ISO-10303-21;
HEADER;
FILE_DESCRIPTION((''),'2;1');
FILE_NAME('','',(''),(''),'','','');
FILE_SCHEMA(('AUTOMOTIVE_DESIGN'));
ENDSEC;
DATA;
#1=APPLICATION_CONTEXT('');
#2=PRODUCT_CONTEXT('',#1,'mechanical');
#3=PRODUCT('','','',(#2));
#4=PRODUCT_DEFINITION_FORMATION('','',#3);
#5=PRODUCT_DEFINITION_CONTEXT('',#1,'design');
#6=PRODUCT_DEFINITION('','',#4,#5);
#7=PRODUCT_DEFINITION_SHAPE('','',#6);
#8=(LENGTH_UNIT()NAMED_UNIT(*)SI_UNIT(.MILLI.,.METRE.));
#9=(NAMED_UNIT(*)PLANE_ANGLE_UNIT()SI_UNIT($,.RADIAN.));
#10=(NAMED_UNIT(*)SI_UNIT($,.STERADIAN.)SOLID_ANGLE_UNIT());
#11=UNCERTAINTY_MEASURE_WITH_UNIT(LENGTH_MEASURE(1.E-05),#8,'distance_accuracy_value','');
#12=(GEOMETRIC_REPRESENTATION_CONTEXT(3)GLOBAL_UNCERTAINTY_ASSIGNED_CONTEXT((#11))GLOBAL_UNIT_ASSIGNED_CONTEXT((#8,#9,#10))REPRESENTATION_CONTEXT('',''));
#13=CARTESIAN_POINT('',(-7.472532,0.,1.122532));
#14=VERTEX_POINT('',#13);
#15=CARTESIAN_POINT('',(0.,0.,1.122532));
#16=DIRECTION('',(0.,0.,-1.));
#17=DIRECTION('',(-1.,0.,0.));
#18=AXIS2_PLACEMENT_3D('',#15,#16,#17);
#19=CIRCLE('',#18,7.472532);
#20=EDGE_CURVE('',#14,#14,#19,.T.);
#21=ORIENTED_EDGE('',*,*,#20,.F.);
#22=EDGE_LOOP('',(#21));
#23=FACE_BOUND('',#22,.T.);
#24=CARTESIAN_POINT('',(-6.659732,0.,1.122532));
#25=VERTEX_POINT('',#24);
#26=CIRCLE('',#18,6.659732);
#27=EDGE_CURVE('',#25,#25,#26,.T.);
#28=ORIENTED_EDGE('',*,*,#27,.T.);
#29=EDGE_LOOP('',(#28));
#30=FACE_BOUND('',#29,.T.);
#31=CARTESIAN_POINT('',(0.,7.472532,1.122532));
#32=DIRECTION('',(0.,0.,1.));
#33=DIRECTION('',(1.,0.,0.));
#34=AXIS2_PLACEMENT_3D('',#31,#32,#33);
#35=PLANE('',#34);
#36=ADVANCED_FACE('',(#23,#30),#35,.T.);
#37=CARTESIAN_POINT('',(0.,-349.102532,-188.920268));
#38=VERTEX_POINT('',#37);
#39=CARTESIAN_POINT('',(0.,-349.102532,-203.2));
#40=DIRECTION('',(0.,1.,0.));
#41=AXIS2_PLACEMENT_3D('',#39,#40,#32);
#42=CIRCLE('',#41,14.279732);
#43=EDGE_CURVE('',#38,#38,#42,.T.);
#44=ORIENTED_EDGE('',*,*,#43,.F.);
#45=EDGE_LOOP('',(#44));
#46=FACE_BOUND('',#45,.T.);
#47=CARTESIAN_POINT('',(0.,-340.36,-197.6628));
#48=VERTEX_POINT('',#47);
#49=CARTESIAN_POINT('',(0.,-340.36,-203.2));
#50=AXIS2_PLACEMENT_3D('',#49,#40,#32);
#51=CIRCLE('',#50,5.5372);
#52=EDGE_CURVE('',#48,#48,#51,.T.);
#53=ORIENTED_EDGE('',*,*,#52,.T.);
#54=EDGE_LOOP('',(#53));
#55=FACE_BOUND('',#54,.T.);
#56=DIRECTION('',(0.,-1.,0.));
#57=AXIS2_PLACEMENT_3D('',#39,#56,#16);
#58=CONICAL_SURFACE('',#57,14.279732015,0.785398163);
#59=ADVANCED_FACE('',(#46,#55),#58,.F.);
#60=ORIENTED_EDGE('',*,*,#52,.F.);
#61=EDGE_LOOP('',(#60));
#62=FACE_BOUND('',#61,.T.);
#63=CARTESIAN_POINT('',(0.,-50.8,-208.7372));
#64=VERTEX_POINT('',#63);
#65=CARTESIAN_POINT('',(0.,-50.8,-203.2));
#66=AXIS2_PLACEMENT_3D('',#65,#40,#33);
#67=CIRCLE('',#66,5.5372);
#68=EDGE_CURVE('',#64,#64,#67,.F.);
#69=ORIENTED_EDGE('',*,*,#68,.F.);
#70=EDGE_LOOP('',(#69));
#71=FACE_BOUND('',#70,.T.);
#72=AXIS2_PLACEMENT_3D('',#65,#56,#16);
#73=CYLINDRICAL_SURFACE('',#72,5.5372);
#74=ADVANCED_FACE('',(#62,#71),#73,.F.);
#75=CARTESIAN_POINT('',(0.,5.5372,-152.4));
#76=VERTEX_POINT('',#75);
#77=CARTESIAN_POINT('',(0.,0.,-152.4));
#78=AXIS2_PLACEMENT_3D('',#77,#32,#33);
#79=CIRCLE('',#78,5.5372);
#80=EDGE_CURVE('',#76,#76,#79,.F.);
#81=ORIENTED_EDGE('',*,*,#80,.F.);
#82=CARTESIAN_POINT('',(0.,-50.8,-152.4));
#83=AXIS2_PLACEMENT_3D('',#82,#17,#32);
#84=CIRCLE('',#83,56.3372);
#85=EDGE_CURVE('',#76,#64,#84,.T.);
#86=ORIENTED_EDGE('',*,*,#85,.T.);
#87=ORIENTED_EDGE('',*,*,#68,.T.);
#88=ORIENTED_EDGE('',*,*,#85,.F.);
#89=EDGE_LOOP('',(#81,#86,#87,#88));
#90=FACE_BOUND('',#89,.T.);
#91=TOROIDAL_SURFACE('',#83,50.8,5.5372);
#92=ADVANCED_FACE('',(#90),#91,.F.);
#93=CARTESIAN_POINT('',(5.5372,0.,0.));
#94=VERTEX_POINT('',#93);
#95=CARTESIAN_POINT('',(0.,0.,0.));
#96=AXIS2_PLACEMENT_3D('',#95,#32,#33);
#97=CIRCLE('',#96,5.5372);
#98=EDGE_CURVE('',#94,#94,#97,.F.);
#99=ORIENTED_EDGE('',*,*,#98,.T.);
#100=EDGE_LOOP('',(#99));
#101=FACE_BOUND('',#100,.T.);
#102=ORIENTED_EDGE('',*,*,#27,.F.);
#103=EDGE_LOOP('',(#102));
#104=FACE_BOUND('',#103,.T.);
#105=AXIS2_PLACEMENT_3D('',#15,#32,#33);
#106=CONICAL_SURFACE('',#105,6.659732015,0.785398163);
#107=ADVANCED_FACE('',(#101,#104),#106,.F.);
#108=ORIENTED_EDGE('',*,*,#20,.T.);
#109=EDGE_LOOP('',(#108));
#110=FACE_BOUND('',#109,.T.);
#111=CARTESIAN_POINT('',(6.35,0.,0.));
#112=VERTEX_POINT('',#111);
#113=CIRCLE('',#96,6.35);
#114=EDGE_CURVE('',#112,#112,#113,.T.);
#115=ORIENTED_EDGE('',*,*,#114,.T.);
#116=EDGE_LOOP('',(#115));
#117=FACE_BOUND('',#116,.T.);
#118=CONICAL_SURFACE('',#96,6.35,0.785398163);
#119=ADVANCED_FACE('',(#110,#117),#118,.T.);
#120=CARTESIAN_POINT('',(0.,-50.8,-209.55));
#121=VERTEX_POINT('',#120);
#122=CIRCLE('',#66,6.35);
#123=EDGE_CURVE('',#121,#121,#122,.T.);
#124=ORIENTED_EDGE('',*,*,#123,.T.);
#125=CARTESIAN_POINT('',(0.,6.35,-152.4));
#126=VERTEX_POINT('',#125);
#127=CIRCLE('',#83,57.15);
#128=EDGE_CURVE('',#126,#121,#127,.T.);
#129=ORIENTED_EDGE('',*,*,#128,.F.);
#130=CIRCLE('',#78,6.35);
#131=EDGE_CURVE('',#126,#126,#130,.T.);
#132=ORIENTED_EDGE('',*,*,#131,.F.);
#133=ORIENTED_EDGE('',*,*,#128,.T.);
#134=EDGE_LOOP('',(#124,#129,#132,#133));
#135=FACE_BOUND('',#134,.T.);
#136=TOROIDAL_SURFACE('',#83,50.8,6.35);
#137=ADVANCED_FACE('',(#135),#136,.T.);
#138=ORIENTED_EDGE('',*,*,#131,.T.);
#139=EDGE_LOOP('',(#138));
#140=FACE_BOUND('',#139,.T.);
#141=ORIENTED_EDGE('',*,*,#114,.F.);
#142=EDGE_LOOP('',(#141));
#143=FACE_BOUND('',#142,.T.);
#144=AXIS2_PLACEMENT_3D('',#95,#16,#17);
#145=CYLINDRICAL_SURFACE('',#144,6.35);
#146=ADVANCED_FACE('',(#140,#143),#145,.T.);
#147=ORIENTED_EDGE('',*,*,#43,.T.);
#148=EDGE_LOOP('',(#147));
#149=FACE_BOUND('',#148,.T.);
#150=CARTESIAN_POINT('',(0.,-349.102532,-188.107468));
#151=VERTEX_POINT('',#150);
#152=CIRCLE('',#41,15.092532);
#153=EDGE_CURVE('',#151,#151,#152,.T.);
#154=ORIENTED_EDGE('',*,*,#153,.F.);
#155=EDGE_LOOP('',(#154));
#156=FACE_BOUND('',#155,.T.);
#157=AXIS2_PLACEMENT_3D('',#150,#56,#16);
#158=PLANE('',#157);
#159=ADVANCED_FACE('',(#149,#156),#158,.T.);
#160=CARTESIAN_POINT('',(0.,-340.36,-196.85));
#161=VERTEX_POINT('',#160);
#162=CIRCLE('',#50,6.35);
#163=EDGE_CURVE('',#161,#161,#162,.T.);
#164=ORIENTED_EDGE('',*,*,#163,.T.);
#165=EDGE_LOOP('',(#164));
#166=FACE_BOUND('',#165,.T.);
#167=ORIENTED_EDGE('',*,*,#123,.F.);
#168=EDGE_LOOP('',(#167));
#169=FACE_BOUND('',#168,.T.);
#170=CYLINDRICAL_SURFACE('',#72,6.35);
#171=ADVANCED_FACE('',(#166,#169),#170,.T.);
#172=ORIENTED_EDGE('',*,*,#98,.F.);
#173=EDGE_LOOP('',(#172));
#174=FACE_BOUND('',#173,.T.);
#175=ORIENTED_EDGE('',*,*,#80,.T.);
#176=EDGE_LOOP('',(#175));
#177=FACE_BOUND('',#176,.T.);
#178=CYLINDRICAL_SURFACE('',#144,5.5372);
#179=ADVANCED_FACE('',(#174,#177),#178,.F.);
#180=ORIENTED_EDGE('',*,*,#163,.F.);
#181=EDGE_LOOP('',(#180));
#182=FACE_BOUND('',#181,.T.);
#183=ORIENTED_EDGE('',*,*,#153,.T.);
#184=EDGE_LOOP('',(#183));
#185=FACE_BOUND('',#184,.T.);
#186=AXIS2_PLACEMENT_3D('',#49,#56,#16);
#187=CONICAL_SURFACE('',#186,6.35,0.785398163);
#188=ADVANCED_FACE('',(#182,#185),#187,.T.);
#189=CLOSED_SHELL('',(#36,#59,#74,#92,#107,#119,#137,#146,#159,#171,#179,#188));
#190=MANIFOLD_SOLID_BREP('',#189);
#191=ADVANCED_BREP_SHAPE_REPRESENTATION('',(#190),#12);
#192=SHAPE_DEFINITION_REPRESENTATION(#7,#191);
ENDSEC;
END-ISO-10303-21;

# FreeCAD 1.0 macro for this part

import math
import FreeCAD as App
import Part
import Sketcher
Q = App.Units.Quantity


def add_polygon(sketch, points):
    """Adds a closed chain of lines whose ends are joined by coincident constraints."""
    first, n = sketch.GeometryCount, len(points)
    for a, b in zip(points, points[1:] + points[:1]):
        sketch.addGeometry(Part.LineSegment(App.Vector(*a, 0), App.Vector(*b, 0)), False)
    for i in range(n):
        sketch.addConstraint(Sketcher.Constraint("Coincident", first + i, 2, first + (i + 1) % n, 1))

doc = App.newDocument("Part")
params = doc.addObject("Spreadsheet::Sheet", "Params")
for row, (alias, value) in enumerate([
    ("sketch1_diameter", "0.5 in"),
    ("sketch1_diameter2", "0.436 in"),
    ("sketch2_radius", "2 in"),
    ("sketch2_height", "6 in"),
    ("sketch2_width", "11.4 in"),
    ("sketch3_width", "0.032 in"),
    ("sketch3_length", "0.0625 in"),
    ("revolution_angle", "360 deg"),
    ("sketch4_height", "0.032 in"),
    ("revolution2_angle", "360 deg"),
], start=1):
    params.set(f"A{row}", alias)
    params.set(f"B{row}", "=" + value)
    params.setAlias(f"B{row}", alias)

body = doc.addObject("PartDesign::Body", "Body")

# Sketch on XY plane
sketch1 = body.newObject("Sketcher::SketchObject", "Sketch")
sketch1.AttachmentSupport = (doc.getObject("XY_Plane"), [""])
sketch1.MapMode = "FlatFace"
sketch1.addGeometry([
    Part.Circle(App.Vector(0, 0, 0), App.Vector(0, 0, 1), 6.35),
    Part.Circle(App.Vector(0, 0, 0), App.Vector(0, 0, 1), 5.5372),
], False)
sketch1.addConstraint([
    Sketcher.Constraint("Coincident", 0, 3, -1, 1),
    Sketcher.Constraint("Coincident", 1, 3, -1, 1),
    Sketcher.Constraint("Diameter", 0, Q("0.5 in")),
    Sketcher.Constraint("Diameter", 1, Q("0.436 in")),
])
sketch1.setExpression("Constraints[2]", "Params.sketch1_diameter")
sketch1.setExpression("Constraints[3]", "Params.sketch1_diameter2")

# Sketch on YZ plane
sketch2 = body.newObject("Sketcher::SketchObject", "Sketch001")
sketch2.AttachmentSupport = (doc.getObject("YZ_Plane"), [""])
sketch2.MapMode = "FlatFace"
sketch2.addGeometry([
    Part.LineSegment(App.Vector(0, 0, 0), App.Vector(0, -152.4, 0)),
    Part.ArcOfCircle(Part.Circle(App.Vector(-50.8, -152.4, 0), App.Vector(0, 0, 1), 50.8), math.radians(-90), math.radians(0)),
    Part.LineSegment(App.Vector(-50.8, -203.2, 0), App.Vector(-340.36, -203.2, 0)),
], False)
sketch2.addConstraint([
    Sketcher.Constraint("Tangent", 0, 2, 1, 2),
    Sketcher.Constraint("Tangent", 1, 1, 2, 1),
    Sketcher.Constraint("Vertical", 0),
    Sketcher.Constraint("Horizontal", 2),
    Sketcher.Constraint("Coincident", 0, 1, -1, 1),
    Sketcher.Constraint("Radius", 1, Q("2 in")),
    Sketcher.Constraint("DistanceY", 0, 2, 0, 1, Q("6 in")),
    Sketcher.Constraint("DistanceX", 2, 2, 2, 1, Q("11.4 in")),
])
sketch2.setExpression("Constraints[5]", "Params.sketch2_radius")
sketch2.setExpression("Constraints[6]", "Params.sketch2_height")
sketch2.setExpression("Constraints[7]", "Params.sketch2_width")
doc.recompute()

additivepipe = body.newObject("PartDesign::AdditivePipe", "AdditivePipe")
additivepipe.Profile = sketch1
additivepipe.Spine = (sketch2, ["Edge1", "Edge2", "Edge3"])

# Sketch on YZ plane
sketch3 = body.newObject("Sketcher::SketchObject", "Sketch002")
sketch3.AttachmentSupport = (doc.getObject("YZ_Plane"), [""])
sketch3.MapMode = "FlatFace"
add_polygon(sketch3, [(6.659732, 1.122532), (5.5372, 0), (6.35, 0), (7.472532, 1.122532)])  # lines 0-3
sketch3.addConstraint([
    Sketcher.Constraint("Horizontal", 1),
    Sketcher.Constraint("Horizontal", 3),
    Sketcher.Constraint("PointOnObject", 0, 2, -1),
    Sketcher.Constraint("Parallel", 0, 2),
    Sketcher.Constraint("Angle", 0, Q("-135 deg")),
    Sketcher.Constraint("DistanceX", 1, 1, 1, 2, Q("0.032 in")),
    Sketcher.Constraint("DistanceX", -1, 1, 1, 2, Q("0.25 in")),
    Sketcher.Constraint("Distance", 0, Q("0.0625 in")),
])
sketch3.setExpression("Constraints[9]", "Params.sketch3_width")
sketch3.setExpression("Constraints[11]", "Params.sketch3_length")
revolution = body.newObject("PartDesign::Revolution", "Revolution")
revolution.Profile = sketch3
revolution.ReferenceAxis = (sketch3, ["V_Axis"])
revolution.setExpression("Angle", "Params.revolution_angle")

# Sketch on YZ plane
sketch4 = body.newObject("Sketcher::SketchObject", "Sketch003")
sketch4.AttachmentSupport = (doc.getObject("YZ_Plane"), [""])
sketch4.MapMode = "FlatFace"
add_polygon(sketch4, [(-340.36, -196.85), (-349.102532, -188.107468), (-349.102532, -188.920268), (-340.36, -197.6628)])  # lines 0-3
sketch4.addGeometry(Part.LineSegment(App.Vector(-340.36, -203.2, 0), App.Vector(-349.102532, -203.2, 0)), True)  # axis
sketch4.addConstraint([
    Sketcher.Constraint("Vertical", 1),
    Sketcher.Constraint("Vertical", 3),
    Sketcher.Constraint("Horizontal", 4),
    Sketcher.Constraint("Parallel", 0, 2),
    Sketcher.Constraint("Vertical", 3, 2, 4, 1),
    Sketcher.Constraint("Vertical", 1, 2, 4, 2),
    Sketcher.Constraint("DistanceY", 4, 1, -1, 1, Q("8 in")),
    Sketcher.Constraint("Angle", 0, Q("135 deg")),
    Sketcher.Constraint("DistanceX", 2, 2, -1, 1, Q("13.4 in")),
    Sketcher.Constraint("DistanceY", 1, 2, 1, 1, Q("0.032 in")),
    Sketcher.Constraint("DistanceY", 3, 2, -1, 1, Q("7.75 in")),
    Sketcher.Constraint("DistanceX", 4, 2, 4, 1, 8.742532),
])
sketch4.setExpression("Constraints[13]", "Params.sketch4_height")
revolution2 = body.newObject("PartDesign::Revolution", "Revolution001")
revolution2.Profile = sketch4
revolution2.ReferenceAxis = (sketch4, ["Axis0"])
revolution2.setExpression("Angle", "Params.revolution2_angle")

doc.recompute()
